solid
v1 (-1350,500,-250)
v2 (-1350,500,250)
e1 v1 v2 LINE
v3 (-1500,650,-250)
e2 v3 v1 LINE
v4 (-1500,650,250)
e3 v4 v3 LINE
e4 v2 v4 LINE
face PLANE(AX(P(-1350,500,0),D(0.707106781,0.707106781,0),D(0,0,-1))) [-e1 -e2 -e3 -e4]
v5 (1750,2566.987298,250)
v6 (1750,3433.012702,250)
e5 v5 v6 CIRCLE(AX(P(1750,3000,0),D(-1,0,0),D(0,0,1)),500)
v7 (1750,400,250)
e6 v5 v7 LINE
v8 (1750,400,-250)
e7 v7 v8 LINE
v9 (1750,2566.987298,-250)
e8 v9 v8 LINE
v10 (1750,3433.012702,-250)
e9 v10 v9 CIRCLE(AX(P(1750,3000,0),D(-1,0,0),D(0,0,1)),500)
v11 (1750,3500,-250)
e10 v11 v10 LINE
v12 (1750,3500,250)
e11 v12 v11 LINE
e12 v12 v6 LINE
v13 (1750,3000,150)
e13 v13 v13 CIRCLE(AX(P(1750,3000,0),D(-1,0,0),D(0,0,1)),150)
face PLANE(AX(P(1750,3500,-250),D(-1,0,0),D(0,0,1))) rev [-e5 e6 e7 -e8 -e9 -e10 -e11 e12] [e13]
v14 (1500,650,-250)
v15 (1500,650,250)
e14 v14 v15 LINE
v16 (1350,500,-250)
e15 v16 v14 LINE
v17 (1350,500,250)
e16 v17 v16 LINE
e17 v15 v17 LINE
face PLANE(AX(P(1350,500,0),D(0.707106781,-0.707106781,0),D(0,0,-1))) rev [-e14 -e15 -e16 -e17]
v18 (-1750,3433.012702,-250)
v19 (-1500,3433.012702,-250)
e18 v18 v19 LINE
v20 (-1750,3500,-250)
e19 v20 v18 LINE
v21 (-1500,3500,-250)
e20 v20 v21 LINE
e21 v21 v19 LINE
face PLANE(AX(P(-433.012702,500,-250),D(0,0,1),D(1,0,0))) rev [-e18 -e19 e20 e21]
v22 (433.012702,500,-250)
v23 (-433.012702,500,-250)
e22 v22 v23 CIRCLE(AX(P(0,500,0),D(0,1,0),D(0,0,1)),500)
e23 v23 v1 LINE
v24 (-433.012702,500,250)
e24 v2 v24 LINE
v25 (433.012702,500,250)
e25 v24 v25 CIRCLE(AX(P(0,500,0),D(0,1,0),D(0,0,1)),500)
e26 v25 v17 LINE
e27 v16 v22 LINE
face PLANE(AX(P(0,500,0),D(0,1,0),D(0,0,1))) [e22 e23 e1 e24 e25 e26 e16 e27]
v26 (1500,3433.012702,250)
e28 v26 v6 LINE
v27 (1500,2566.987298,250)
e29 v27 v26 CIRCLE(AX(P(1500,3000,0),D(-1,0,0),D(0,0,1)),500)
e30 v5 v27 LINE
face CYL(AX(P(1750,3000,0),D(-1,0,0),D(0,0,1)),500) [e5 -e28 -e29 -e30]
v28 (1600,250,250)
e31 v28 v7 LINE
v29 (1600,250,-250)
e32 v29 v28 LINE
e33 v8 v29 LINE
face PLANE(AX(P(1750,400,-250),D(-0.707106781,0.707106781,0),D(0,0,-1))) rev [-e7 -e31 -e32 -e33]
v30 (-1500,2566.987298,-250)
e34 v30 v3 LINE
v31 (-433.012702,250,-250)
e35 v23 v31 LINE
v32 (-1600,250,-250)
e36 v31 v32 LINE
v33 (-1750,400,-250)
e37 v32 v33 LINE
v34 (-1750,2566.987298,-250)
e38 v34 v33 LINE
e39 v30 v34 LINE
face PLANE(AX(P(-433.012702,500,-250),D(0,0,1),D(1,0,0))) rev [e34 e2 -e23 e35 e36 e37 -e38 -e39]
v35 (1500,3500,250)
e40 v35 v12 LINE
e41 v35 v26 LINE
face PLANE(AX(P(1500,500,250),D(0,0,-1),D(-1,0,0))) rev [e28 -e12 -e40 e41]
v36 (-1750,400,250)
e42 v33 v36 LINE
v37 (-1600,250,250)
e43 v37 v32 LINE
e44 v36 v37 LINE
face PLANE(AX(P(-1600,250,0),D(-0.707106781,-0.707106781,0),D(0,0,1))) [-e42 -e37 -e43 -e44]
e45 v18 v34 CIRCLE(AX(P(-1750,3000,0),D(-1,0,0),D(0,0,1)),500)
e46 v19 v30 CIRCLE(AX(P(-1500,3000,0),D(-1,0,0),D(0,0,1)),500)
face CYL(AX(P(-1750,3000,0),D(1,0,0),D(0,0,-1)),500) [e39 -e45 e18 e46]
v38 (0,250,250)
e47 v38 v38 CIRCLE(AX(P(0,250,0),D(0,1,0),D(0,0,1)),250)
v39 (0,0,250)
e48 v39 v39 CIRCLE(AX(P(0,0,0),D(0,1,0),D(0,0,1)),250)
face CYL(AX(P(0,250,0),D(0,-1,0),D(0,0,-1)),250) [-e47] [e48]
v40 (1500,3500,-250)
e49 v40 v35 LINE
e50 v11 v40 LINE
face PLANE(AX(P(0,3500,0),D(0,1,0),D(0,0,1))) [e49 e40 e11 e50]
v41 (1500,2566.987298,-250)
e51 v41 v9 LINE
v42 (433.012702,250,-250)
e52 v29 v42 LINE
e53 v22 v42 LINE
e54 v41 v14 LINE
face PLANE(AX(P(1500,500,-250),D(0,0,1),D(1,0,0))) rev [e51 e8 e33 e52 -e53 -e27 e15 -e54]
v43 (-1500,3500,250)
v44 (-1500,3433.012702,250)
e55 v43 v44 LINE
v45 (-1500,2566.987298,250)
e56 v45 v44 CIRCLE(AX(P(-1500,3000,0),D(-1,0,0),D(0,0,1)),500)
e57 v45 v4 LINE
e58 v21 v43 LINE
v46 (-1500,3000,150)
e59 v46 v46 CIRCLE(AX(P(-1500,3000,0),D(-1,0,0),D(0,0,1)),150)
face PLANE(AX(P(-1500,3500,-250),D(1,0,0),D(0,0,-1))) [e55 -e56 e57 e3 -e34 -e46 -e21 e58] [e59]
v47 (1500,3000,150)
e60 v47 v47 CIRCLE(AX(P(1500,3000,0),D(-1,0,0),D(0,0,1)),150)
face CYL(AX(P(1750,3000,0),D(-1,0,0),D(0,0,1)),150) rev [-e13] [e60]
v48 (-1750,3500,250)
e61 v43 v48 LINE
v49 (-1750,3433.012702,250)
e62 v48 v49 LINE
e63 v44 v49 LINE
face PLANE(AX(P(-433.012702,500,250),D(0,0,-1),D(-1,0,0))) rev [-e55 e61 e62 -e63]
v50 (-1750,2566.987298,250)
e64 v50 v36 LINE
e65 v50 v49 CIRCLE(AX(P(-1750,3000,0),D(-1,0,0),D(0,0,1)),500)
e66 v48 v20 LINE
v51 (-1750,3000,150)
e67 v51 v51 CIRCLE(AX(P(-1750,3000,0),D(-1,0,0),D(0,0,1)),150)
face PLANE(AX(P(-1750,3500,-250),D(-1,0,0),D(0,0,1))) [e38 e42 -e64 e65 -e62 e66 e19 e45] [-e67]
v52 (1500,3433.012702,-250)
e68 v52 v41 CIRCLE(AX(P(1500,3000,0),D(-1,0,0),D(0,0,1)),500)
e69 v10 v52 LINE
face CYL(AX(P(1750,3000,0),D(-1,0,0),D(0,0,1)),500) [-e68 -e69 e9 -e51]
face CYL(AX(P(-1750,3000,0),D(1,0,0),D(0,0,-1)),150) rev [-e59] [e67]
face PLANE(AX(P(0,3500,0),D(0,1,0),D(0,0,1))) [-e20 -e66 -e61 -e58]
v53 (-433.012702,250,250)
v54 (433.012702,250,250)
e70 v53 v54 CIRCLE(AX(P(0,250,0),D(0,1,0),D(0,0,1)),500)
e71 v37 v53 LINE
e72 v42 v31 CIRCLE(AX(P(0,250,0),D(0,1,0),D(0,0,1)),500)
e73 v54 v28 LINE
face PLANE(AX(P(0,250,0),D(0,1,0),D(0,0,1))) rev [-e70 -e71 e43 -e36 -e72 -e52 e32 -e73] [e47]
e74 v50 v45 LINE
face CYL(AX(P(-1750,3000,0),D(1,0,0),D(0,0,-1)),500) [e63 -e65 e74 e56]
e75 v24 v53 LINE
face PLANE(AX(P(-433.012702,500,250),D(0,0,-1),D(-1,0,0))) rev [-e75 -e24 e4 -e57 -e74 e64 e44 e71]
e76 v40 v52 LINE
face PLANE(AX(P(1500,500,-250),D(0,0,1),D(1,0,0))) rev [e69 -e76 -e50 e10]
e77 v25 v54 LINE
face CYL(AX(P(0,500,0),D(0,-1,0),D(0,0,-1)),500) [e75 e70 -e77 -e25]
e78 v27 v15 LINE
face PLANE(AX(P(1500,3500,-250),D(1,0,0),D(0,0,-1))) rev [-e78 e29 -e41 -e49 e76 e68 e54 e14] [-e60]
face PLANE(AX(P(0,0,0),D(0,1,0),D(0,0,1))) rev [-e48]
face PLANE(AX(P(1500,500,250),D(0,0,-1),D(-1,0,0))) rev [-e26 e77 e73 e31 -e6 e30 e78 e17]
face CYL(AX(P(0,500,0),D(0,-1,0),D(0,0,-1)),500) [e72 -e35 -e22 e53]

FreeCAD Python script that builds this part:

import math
import FreeCAD as App
import Part
import Sketcher
from FreeCAD import Vector


def edges_at(feature, points):
    """Names of the edges that pass closest to the given points."""
    edges = feature.Shape.Edges
    near = lambda p: min(range(len(edges)), key=lambda i: edges[i].distToShape(Part.Vertex(*p))[0])
    return sorted({f"Edge{near(p) + 1}" for p in points})


def add_polygon(sketch, points):
    """Adds a closed chain of lines whose ends are joined by coincident constraints."""
    first, n = sketch.GeometryCount, len(points)
    for a, b in zip(points, points[1:] + points[:1]):
        sketch.addGeometry(Part.LineSegment(App.Vector(*a, 0), App.Vector(*b, 0)), False)
    for i in range(n):
        sketch.addConstraint(Sketcher.Constraint("Coincident", first + i, 2, first + (i + 1) % n, 1))

doc = App.newDocument("Part")
params = doc.addObject("Spreadsheet::Sheet", "Params")
for row, (alias, value) in enumerate([
    ("sketch1_diameter", "500 mm"),
    ("pad1_length", "250 mm"),
    ("sketch2_radius", "500 mm"),
    ("sketch2_height", "500 mm"),
    ("pad2_length", "250 mm"),
    ("sketch3_width", "250 mm"),
    ("sketch3_height", "500 mm"),
    ("pad3_length", "3250 mm"),
    ("sketch4_diameter", "1000 mm"),
    ("pad4_length", "250 mm"),
    ("sketch5_diameter", "300 mm"),
    ("pocket1_length", "250 mm"),
    ("chamfer_size", "150 mm"),
], start=1):
    params.set(f"A{row}", alias)
    params.set(f"B{row}", "=" + value)
    params.setAlias(f"B{row}", alias)

body = doc.addObject("PartDesign::Body", "Body")

# Sketch on XZ plane
sketch1 = body.newObject("Sketcher::SketchObject", "Sketch")
sketch1.AttachmentSupport = (doc.getObject("XZ_Plane"), [""])
sketch1.MapMode = "FlatFace"
sketch1.addGeometry(Part.Circle(Vector(0, 0, 0), Vector(0, 0, 1), 250), False)
sketch1.addConstraint([
    Sketcher.Constraint("Coincident", 0, 3, -1, 1),
    Sketcher.Constraint("Diameter", 0, 500.0),
])
sketch1.setExpression("Constraints[1]", "Params.sketch1_diameter")
pad1 = body.newObject("PartDesign::Pad", "Pad")
pad1.Profile = sketch1
pad1.setExpression("Length", "Params.pad1_length")
pad1.Reversed = True

# Sketch on XZ plane
sketch2 = body.newObject("Sketcher::SketchObject", "Sketch001")
sketch2.AttachmentSupport = (doc.getObject("XZ_Plane"), [""])
sketch2.MapMode = "FlatFace"
sketch2.AttachmentOffset = App.Placement(Vector(0, 0, -250), App.Rotation())
sketch2.addGeometry([
    Part.LineSegment(Vector(-433, -250, 0), Vector(-1500, -250, 0)),  # 0
    Part.LineSegment(Vector(-1500, -250, 0), Vector(-1500, 250, 0)),  # 1
    Part.LineSegment(Vector(-1500, 250, 0), Vector(-433, 250, 0)),  # 2
    Part.ArcOfCircle(Part.Circle(Vector(0, 0, 0), Vector(0, 0, 1), 500), math.radians(30), math.radians(150)),  # 3
    Part.LineSegment(Vector(433, 250, 0), Vector(1500, 250, 0)),  # 4
    Part.LineSegment(Vector(1500, 250, 0), Vector(1500, -250, 0)),  # 5
    Part.LineSegment(Vector(1500, -250, 0), Vector(433, -250, 0)),  # 6
    Part.ArcOfCircle(Part.Circle(Vector(0, 0, 0), Vector(0, 0, 1), 500), math.radians(-150), math.radians(-30)),  # 7
], False)
sketch2.addConstraint([
    Sketcher.Constraint("Coincident", 0, 2, 1, 1),
    Sketcher.Constraint("Coincident", 1, 2, 2, 1),
    Sketcher.Constraint("Coincident", 2, 2, 3, 2),
    Sketcher.Constraint("Coincident", 3, 1, 4, 1),
    Sketcher.Constraint("Coincident", 4, 2, 5, 1),
    Sketcher.Constraint("Coincident", 5, 2, 6, 1),
    Sketcher.Constraint("Coincident", 6, 2, 7, 2),
    Sketcher.Constraint("Coincident", 7, 1, 0, 1),
    Sketcher.Constraint("Horizontal", 0),
    Sketcher.Constraint("Vertical", 1),
    Sketcher.Constraint("Horizontal", 2),
    Sketcher.Constraint("Horizontal", 4),
    Sketcher.Constraint("Vertical", 5),
    Sketcher.Constraint("Horizontal", 6),
    Sketcher.Constraint("Coincident", 3, 3, -1, 1),
    Sketcher.Constraint("Coincident", 7, 3, -1, 1),
    Sketcher.Constraint("Equal", 3, 7),
    Sketcher.Constraint("Symmetric", 0, 2, 4, 2, -1, 1),
    Sketcher.Constraint("Horizontal", 0, 2, 5, 2),
    Sketcher.Constraint("Equal", 0, 2),
    Sketcher.Constraint("Radius", 3, 500.0),
    Sketcher.Constraint("DistanceY", 1, 1, 1, 2, 500.0),
    Sketcher.Constraint("DistanceX", 0, 2, -1, 1, 1500.0),
])
sketch2.setExpression("Constraints[20]", "Params.sketch2_radius")
sketch2.setExpression("Constraints[21]", "Params.sketch2_height")
pad2 = body.newObject("PartDesign::Pad", "Pad001")
pad2.Profile = sketch2
pad2.setExpression("Length", "Params.pad2_length")
pad2.Reversed = True

# Sketch on XZ plane
sketch3 = body.newObject("Sketcher::SketchObject", "Sketch002")
sketch3.AttachmentSupport = (doc.getObject("XZ_Plane"), [""])
sketch3.MapMode = "FlatFace"
sketch3.AttachmentOffset = App.Placement(Vector(0, 0, -250), App.Rotation())
add_polygon(sketch3, [(1500, -250), (1500, 250), (1750, 250), (1750, -250)])  # lines 0-3
sketch3.addConstraint([
    Sketcher.Constraint("Vertical", 0),
    Sketcher.Constraint("Horizontal", 1),
    Sketcher.Constraint("Vertical", 2),
    Sketcher.Constraint("Horizontal", 3),
    Sketcher.Constraint("DistanceX", 1, 1, 1, 2, 250.0),
    Sketcher.Constraint("DistanceY", 0, 1, 0, 2, 500.0),
    Sketcher.Constraint("DistanceX", -1, 1, 0, 2, 1500.0),
    Sketcher.Constraint("DistanceY", -1, 1, 0, 2, 250.0),
])
sketch3.setExpression("Constraints[8]", "Params.sketch3_width")
sketch3.setExpression("Constraints[9]", "Params.sketch3_height")
pad3 = body.newObject("PartDesign::Pad", "Pad002")
pad3.Profile = sketch3
pad3.setExpression("Length", "Params.pad3_length")
pad3.Reversed = True

# Sketch on YZ plane
sketch4 = body.newObject("Sketcher::SketchObject", "Sketch003")
sketch4.AttachmentSupport = (doc.getObject("YZ_Plane"), [""])
sketch4.MapMode = "FlatFace"
sketch4.AttachmentOffset = App.Placement(Vector(0, 0, 1500), App.Rotation())
sketch4.addGeometry(Part.Circle(Vector(3000, 0, 0), Vector(0, 0, 1), 500), False)
sketch4.addConstraint([
    Sketcher.Constraint("PointOnObject", 0, 3, -1),
    Sketcher.Constraint("Diameter", 0, 1000.0),
    Sketcher.Constraint("DistanceX", -1, 1, 0, 3, 3000.0),
])
sketch4.setExpression("Constraints[1]", "Params.sketch4_diameter")
pad4 = body.newObject("PartDesign::Pad", "Pad003")
pad4.Profile = sketch4
pad4.setExpression("Length", "Params.pad4_length")

# Sketch on YZ plane
sketch5 = body.newObject("Sketcher::SketchObject", "Sketch004")
sketch5.AttachmentSupport = (doc.getObject("YZ_Plane"), [""])
sketch5.MapMode = "FlatFace"
sketch5.AttachmentOffset = App.Placement(Vector(0, 0, 1500), App.Rotation())
sketch5.addGeometry(Part.Circle(Vector(3000, 0, 0), Vector(0, 0, 1), 150), False)
sketch5.addConstraint([
    Sketcher.Constraint("PointOnObject", 0, 3, -1),
    Sketcher.Constraint("Diameter", 0, 300.0),
    Sketcher.Constraint("DistanceX", -1, 1, 0, 3, 3000.0),
])
sketch5.setExpression("Constraints[1]", "Params.sketch5_diameter")
pocket1 = body.newObject("PartDesign::Pocket", "Pocket")
pocket1.Profile = sketch5
pocket1.setExpression("Length", "Params.pocket1_length")
pocket1.Reversed = True
doc.recompute()

mirrored = body.newObject("PartDesign::Mirrored", "Mirrored")
mirrored.Originals = [pad3, pad4, pocket1]
mirrored.MirrorPlane = (doc.getObject("YZ_Plane"), [""])
body.Tip = mirrored
doc.recompute()

chamfer = body.newObject("PartDesign::Chamfer", "Chamfer")
chamfer.Base = (mirrored, edges_at(mirrored, [
    (1500, 500, 0),
    (-1500, 500, 0),
    (1750, 250, 0),
    (-1750, 250, 0),
]))
chamfer.setExpression("Size", "Params.chamfer_size")

doc.recompute()
